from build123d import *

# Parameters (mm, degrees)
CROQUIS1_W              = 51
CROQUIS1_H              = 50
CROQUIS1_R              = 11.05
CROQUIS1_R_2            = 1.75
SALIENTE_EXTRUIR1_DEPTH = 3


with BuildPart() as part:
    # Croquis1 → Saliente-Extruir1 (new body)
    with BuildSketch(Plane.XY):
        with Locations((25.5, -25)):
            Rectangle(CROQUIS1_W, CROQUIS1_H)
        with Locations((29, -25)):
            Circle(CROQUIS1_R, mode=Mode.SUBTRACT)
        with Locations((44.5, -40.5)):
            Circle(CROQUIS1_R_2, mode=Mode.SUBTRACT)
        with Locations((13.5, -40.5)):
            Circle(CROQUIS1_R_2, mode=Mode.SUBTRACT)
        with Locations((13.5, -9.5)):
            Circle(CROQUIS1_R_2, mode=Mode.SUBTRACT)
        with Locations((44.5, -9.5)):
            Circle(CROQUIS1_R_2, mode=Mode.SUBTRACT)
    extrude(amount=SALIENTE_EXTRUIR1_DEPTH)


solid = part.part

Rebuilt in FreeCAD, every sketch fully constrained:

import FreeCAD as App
import Part
import Sketcher
from FreeCAD import Vector

doc = App.newDocument("Part")
body = doc.addObject("PartDesign::Body", "Body")

sketch1 = body.newObject("Sketcher::SketchObject", "Sketch")
sketch1.AttachmentSupport = (doc.getObject("XY_Plane"), [""])
sketch1.MapMode = "FlatFace"
sketch1.addGeometry(Part.LineSegment(Vector(0, 0, 0), Vector(0, -50, 0)), False)
sketch1.addGeometry(Part.LineSegment(Vector(0, -50, 0), Vector(51, -50, 0)), False)
sketch1.addGeometry(Part.LineSegment(Vector(51, -50, 0), Vector(51, 0, 0)), False)
sketch1.addGeometry(Part.LineSegment(Vector(51, 0, 0), Vector(0, 0, 0)), False)
sketch1.addGeometry(Part.Circle(Vector(13.5, -40.5, 0), Vector(0, 0, 1), 1.8), False)
sketch1.addGeometry(Part.Circle(Vector(44.5, -40.5, 0), Vector(0, 0, 1), 1.8), False)
sketch1.addGeometry(Part.Circle(Vector(13.5, -9.5, 0), Vector(0, 0, 1), 1.8), False)
sketch1.addGeometry(Part.Circle(Vector(29, -25, 0), Vector(0, 0, 1), 11.1), False)
sketch1.addGeometry(Part.Circle(Vector(44.5, -9.5, 0), Vector(0, 0, 1), 1.8), False)
sketch1.addConstraint(Sketcher.Constraint("Coincident", 0, 2, 1, 1))
sketch1.addConstraint(Sketcher.Constraint("Coincident", 1, 2, 2, 1))
sketch1.addConstraint(Sketcher.Constraint("Coincident", 2, 2, 3, 1))
sketch1.addConstraint(Sketcher.Constraint("Coincident", 3, 2, 0, 1))
sketch1.addConstraint(Sketcher.Constraint("Vertical", 0))
sketch1.addConstraint(Sketcher.Constraint("Horizontal", 1))
sketch1.addConstraint(Sketcher.Constraint("Vertical", 2))
sketch1.addConstraint(Sketcher.Constraint("Horizontal", 3))
sketch1.addConstraint(Sketcher.Constraint("Coincident", 3, 2, -1, 1))
sketch1.addConstraint(Sketcher.Constraint("Equal", 4, 5))
sketch1.addConstraint(Sketcher.Constraint("Equal", 5, 6))
sketch1.addConstraint(Sketcher.Constraint("Equal", 6, 8))
sketch1.addConstraint(Sketcher.Constraint("Horizontal", 4, 3, 5, 3))
sketch1.addConstraint(Sketcher.Constraint("Horizontal", 6, 3, 8, 3))
sketch1.addConstraint(Sketcher.Constraint("Vertical", 4, 3, 6, 3))
sketch1.addConstraint(Sketcher.Constraint("Vertical", 5, 3, 8, 3))
sketch1.addConstraint(Sketcher.Constraint("Diameter", 4, 3.5))
sketch1.addConstraint(Sketcher.Constraint("Diameter", 7, 22.1))
sketch1.addConstraint(Sketcher.Constraint("DistanceX", 1, 1, 1, 2, 51.0))
sketch1.addConstraint(Sketcher.Constraint("DistanceY", 0, 2, 0, 1, 50.0))
sketch1.addConstraint(Sketcher.Constraint("DistanceX", -1, 1, 7, 3, 29.0))
sketch1.addConstraint(Sketcher.Constraint("DistanceY", 7, 3, -1, 1, 25.0))
sketch1.addConstraint(Sketcher.Constraint("DistanceX", 4, 3, 5, 3, 31.0))
sketch1.addConstraint(Sketcher.Constraint("DistanceY", 4, 3, 6, 3, 31.0))
sketch1.addConstraint(Sketcher.Constraint("DistanceX", -1, 1, 4, 3, 13.5))
sketch1.addConstraint(Sketcher.Constraint("DistanceY", 4, 3, -1, 1, 40.5))
pad1 = body.newObject("PartDesign::Pad", "Pad")
pad1.Profile = sketch1
pad1.Length = 3

doc.recompute()
